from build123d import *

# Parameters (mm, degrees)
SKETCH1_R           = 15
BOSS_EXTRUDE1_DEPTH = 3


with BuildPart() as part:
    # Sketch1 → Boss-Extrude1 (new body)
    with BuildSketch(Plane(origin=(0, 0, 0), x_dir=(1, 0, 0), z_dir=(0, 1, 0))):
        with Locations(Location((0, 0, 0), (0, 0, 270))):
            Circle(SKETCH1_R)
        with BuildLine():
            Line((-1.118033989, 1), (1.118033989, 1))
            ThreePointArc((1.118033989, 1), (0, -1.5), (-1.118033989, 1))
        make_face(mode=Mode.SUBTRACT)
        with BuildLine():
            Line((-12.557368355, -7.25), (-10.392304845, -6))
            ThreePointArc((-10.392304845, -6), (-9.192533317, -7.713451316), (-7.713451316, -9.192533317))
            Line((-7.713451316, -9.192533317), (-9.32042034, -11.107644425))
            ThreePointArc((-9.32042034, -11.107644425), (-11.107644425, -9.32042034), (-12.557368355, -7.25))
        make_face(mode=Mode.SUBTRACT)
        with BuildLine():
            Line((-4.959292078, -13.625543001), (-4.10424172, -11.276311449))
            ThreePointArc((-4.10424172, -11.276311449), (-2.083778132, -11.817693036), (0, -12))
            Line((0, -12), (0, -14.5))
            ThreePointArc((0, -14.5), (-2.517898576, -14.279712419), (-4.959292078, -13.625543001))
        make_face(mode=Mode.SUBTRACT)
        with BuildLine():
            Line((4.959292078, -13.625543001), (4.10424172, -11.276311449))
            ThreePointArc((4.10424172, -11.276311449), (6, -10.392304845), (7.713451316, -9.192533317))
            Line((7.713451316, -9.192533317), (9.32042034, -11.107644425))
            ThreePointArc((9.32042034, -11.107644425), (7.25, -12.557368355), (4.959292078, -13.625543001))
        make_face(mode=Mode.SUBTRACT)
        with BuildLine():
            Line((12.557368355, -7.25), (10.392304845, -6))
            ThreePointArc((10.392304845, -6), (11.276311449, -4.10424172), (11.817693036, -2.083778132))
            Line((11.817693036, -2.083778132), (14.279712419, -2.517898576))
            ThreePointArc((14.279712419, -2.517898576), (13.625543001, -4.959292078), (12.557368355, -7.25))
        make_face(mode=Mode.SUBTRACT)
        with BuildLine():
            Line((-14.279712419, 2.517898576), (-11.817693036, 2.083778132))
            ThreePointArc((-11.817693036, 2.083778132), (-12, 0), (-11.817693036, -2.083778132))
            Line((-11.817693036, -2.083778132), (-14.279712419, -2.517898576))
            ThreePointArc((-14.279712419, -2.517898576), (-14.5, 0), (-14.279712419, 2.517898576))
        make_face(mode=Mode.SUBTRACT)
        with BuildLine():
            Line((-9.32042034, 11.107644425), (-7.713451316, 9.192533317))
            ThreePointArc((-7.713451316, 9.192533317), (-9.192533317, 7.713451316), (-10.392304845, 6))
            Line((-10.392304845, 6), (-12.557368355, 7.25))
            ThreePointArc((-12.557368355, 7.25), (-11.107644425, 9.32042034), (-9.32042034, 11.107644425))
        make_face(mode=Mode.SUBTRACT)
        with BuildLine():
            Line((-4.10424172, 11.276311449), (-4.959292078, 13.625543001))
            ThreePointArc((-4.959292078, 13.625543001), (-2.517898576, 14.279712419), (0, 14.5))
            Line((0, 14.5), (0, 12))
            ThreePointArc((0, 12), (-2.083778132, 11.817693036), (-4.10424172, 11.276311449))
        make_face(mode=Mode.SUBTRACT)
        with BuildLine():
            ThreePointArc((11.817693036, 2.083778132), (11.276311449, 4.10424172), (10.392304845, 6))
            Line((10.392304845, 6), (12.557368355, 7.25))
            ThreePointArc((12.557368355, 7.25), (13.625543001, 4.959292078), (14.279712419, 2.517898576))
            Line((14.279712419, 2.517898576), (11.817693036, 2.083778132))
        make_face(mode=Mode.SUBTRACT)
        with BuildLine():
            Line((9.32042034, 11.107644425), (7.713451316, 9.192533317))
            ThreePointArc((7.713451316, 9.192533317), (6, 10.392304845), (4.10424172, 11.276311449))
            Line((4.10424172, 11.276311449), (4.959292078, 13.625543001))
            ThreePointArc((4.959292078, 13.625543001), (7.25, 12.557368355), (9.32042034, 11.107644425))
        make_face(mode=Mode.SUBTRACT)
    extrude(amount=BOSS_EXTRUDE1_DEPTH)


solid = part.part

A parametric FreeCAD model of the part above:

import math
import FreeCAD as App
import Part
import Sketcher

V = App.Vector
Q = App.Units.Quantity

doc = App.newDocument("Part")
params = doc.addObject("Spreadsheet::Sheet", "Params")
for row, (alias, value) in enumerate([
    ("sketch1_diameter", "30 mm"),
    ("sketch1_radius", "12 mm"),
    ("sketch1_radius2", "14.5 mm"),
    ("sketch1_radius3", "1.5 mm"),
    ("pad1_length", "3 mm"),
], start=1):
    params.set(f"A{row}", alias)
    params.set(f"B{row}", "=" + value)
    params.setAlias(f"B{row}", alias)

body = doc.addObject("PartDesign::Body", "Body")

sketch1 = body.newObject("Sketcher::SketchObject", "Sketch")
sketch1.AttachmentSupport = (doc.getObject("XZ_Plane"), [""])
sketch1.MapMode = "FlatFace"
sketch1.addGeometry([
    Part.Circle(V(0, 0, 0), V(0, 0, 1), 15),
    Part.ArcOfCircle(Part.Circle(V(0, 0, 0), V(0, 0, 1), 14.5), math.radians(-150), math.radians(-130)),
    Part.LineSegment(V(-9.32042, -11.107644, 0), V(-7.713451, -9.192533, 0)),
    Part.ArcOfCircle(Part.Circle(V(0, 0, 0), V(0, 0, 1), 12), math.radians(-150), math.radians(-130)),
    Part.LineSegment(V(-10.392305, -6, 0), V(-12.557368, -7.25, 0)),
    Part.ArcOfCircle(Part.Circle(V(0, 0, 0), V(0, 0, 1), 12), math.radians(-110), math.radians(-90)),
    Part.LineSegment(V(-4.104242, -11.276311, 0), V(-4.959292, -13.625543, 0)),
    Part.ArcOfCircle(Part.Circle(V(0, 0, 0), V(0, 0, 1), 14.5), math.radians(-110), math.radians(-90)),
    Part.LineSegment(V(0, -14.5, 0), V(0, -12, 0)),
    Part.ArcOfCircle(Part.Circle(V(0, 0, 0), V(0, 0, 1), 14.5), math.radians(170), math.radians(190)),
    Part.LineSegment(V(-14.279712, -2.517899, 0), V(-11.817693, -2.083778, 0)),
    Part.ArcOfCircle(Part.Circle(V(0, 0, 0), V(0, 0, 1), 12), math.radians(170), math.radians(190)),
    Part.LineSegment(V(-11.817693, 2.083778, 0), V(-14.279712, 2.517899, 0)),
    Part.ArcOfCircle(Part.Circle(V(0, 0, 0), V(0, 0, 1), 14.5), math.radians(130), math.radians(150)),
    Part.LineSegment(V(-12.557368, 7.25, 0), V(-10.392305, 6, 0)),
    Part.ArcOfCircle(Part.Circle(V(0, 0, 0), V(0, 0, 1), 12), math.radians(130), math.radians(150)),
    Part.LineSegment(V(-7.713451, 9.192533, 0), V(-9.32042, 11.107644, 0)),
    Part.ArcOfCircle(Part.Circle(V(0, 0, 0), V(0, 0, 1), 14.5), math.radians(90), math.radians(110)),
    Part.LineSegment(V(-4.959292, 13.625543, 0), V(-4.104242, 11.276311, 0)),
    Part.ArcOfCircle(Part.Circle(V(0, 0, 0), V(0, 0, 1), 12), math.radians(90), math.radians(110)),
    Part.LineSegment(V(0, 12, 0), V(0, 14.5, 0)),
    Part.ArcOfCircle(Part.Circle(V(0, 0, 0), V(0, 0, 1), 14.5), math.radians(-70), math.radians(-50)),
    Part.LineSegment(V(9.32042, -11.107644, 0), V(7.713451, -9.192533, 0)),
    Part.ArcOfCircle(Part.Circle(V(0, 0, 0), V(0, 0, 1), 12), math.radians(-70), math.radians(-50)),
    Part.LineSegment(V(4.104242, -11.276311, 0), V(4.959292, -13.625543, 0)),
    Part.LineSegment(V(14.279712, -2.517899, 0), V(11.817693, -2.083778, 0)),
    Part.ArcOfCircle(Part.Circle(V(0, 0, 0), V(0, 0, 1), 12), math.radians(-30), math.radians(-10)),
    Part.LineSegment(V(10.392305, -6, 0), V(12.557368, -7.25, 0)),
    Part.ArcOfCircle(Part.Circle(V(0, 0, 0), V(0, 0, 1), 14.5), math.radians(-30), math.radians(-10)),
    Part.ArcOfCircle(Part.Circle(V(0, 0, 0), V(0, 0, 1), 1.5), math.radians(-41.810315), math.radians(221.810315)),
    Part.LineSegment(V(-1.118034, -1, 0), V(1.118034, -1, 0)),
    Part.ArcOfCircle(Part.Circle(V(0, 0, 0), V(0, 0, 1), 14.5), math.radians(50), math.radians(70)),
    Part.LineSegment(V(4.959292, 13.625543, 0), V(4.104242, 11.276311, 0)),
    Part.ArcOfCircle(Part.Circle(V(0, 0, 0), V(0, 0, 1), 12), math.radians(50), math.radians(70)),
    Part.LineSegment(V(7.713451, 9.192533, 0), V(9.32042, 11.107644, 0)),
    Part.ArcOfCircle(Part.Circle(V(0, 0, 0), V(0, 0, 1), 14.5), math.radians(10), math.radians(30)),
    Part.LineSegment(V(12.557368, 7.25, 0), V(10.392305, 6, 0)),
    Part.ArcOfCircle(Part.Circle(V(0, 0, 0), V(0, 0, 1), 12), math.radians(10), math.radians(30)),
    Part.LineSegment(V(11.817693, 2.083778, 0), V(14.279712, 2.517899, 0)),
], False)
sketch1.addConstraint([
    Sketcher.Constraint("Coincident", 1, 2, 2, 1),
    Sketcher.Constraint("Coincident", 2, 2, 3, 2),
    Sketcher.Constraint("Coincident", 3, 1, 4, 1),
    Sketcher.Constraint("Coincident", 4, 2, 1, 1),
    Sketcher.Constraint("Coincident", 5, 1, 6, 1),
    Sketcher.Constraint("Coincident", 6, 2, 7, 1),
    Sketcher.Constraint("Coincident", 7, 2, 8, 1),
    Sketcher.Constraint("Coincident", 8, 2, 5, 2),
    Sketcher.Constraint("Coincident", 9, 2, 10, 1),
    Sketcher.Constraint("Coincident", 10, 2, 11, 2),
    Sketcher.Constraint("Coincident", 11, 1, 12, 1),
    Sketcher.Constraint("Coincident", 12, 2, 9, 1),
    Sketcher.Constraint("Coincident", 13, 2, 14, 1),
    Sketcher.Constraint("Coincident", 14, 2, 15, 2),
    Sketcher.Constraint("Coincident", 15, 1, 16, 1),
    Sketcher.Constraint("Coincident", 16, 2, 13, 1),
    Sketcher.Constraint("Coincident", 17, 2, 18, 1),
    Sketcher.Constraint("Coincident", 18, 2, 19, 2),
    Sketcher.Constraint("Coincident", 19, 1, 20, 1),
    Sketcher.Constraint("Coincident", 20, 2, 17, 1),
    Sketcher.Constraint("Coincident", 21, 2, 22, 1),
    Sketcher.Constraint("Coincident", 22, 2, 23, 2),
    Sketcher.Constraint("Coincident", 23, 1, 24, 1),
    Sketcher.Constraint("Coincident", 24, 2, 21, 1),
    Sketcher.Constraint("Coincident", 25, 2, 26, 2),
    Sketcher.Constraint("Coincident", 26, 1, 27, 1),
    Sketcher.Constraint("Coincident", 27, 2, 28, 1),
    Sketcher.Constraint("Coincident", 28, 2, 25, 1),
    Sketcher.Constraint("Coincident", 29, 1, 30, 2),
    Sketcher.Constraint("Coincident", 30, 1, 29, 2),
    Sketcher.Constraint("Coincident", 31, 2, 32, 1),
    Sketcher.Constraint("Coincident", 32, 2, 33, 2),
    Sketcher.Constraint("Coincident", 33, 1, 34, 1),
    Sketcher.Constraint("Coincident", 34, 2, 31, 1),
    Sketcher.Constraint("Coincident", 35, 2, 36, 1),
    Sketcher.Constraint("Coincident", 36, 2, 37, 2),
    Sketcher.Constraint("Coincident", 37, 1, 38, 1),
    Sketcher.Constraint("Coincident", 38, 2, 35, 1),
    Sketcher.Constraint("Vertical", 8),
    Sketcher.Constraint("Vertical", 20),
    Sketcher.Constraint("Horizontal", 30),
    Sketcher.Constraint("Coincident", 0, 3, -1, 1),
    Sketcher.Constraint("Coincident", 1, 3, -1, 1),
    Sketcher.Constraint("Coincident", 3, 3, -1, 1),
    Sketcher.Constraint("Coincident", 5, 3, -1, 1),
    Sketcher.Constraint("Coincident", 7, 3, -1, 1),
    Sketcher.Constraint("Coincident", 9, 3, -1, 1),
    Sketcher.Constraint("Coincident", 11, 3, -1, 1),
    Sketcher.Constraint("Coincident", 13, 3, -1, 1),
    Sketcher.Constraint("Coincident", 15, 3, -1, 1),
    Sketcher.Constraint("Coincident", 17, 3, -1, 1),
    Sketcher.Constraint("Coincident", 19, 3, -1, 1),
    Sketcher.Constraint("Coincident", 21, 3, -1, 1),
    Sketcher.Constraint("Coincident", 23, 3, -1, 1),
    Sketcher.Constraint("Coincident", 26, 3, -1, 1),
    Sketcher.Constraint("Coincident", 28, 3, -1, 1),
    Sketcher.Constraint("Coincident", 29, 3, -1, 1),
    Sketcher.Constraint("Coincident", 31, 3, -1, 1),
    Sketcher.Constraint("Coincident", 33, 3, -1, 1),
    Sketcher.Constraint("Coincident", 35, 3, -1, 1),
    Sketcher.Constraint("Coincident", 37, 3, -1, 1),
    Sketcher.Constraint("Equal", 3, 5),
    Sketcher.Constraint("Equal", 1, 7),
    Sketcher.Constraint("Equal", 7, 9),
    Sketcher.Constraint("Equal", 5, 11),
    Sketcher.Constraint("Equal", 9, 13),
    Sketcher.Constraint("Equal", 11, 15),
    Sketcher.Constraint("Equal", 13, 17),
    Sketcher.Constraint("Equal", 15, 19),
    Sketcher.Constraint("Equal", 17, 21),
    Sketcher.Constraint("Equal", 19, 23),
    Sketcher.Constraint("Equal", 23, 26),
    Sketcher.Constraint("Equal", 21, 28),
    Sketcher.Constraint("Equal", 28, 31),
    Sketcher.Constraint("Equal", 26, 33),
    Sketcher.Constraint("Equal", 31, 35),
    Sketcher.Constraint("Equal", 33, 37),
    Sketcher.Constraint("PointOnObject", 7, 2, -2),
    Sketcher.Constraint("PointOnObject", 19, 1, -2),
    Sketcher.Constraint("Parallel", 16, 22),
    Sketcher.Constraint("Parallel", 18, 24),
    Sketcher.Constraint("Parallel", 12, 25),
    Sketcher.Constraint("Parallel", 14, 27),
    Sketcher.Constraint("Parallel", 6, 32),
    Sketcher.Constraint("Parallel", 2, 34),
    Sketcher.Constraint("Parallel", 4, 36),
    Sketcher.Constraint("Parallel", 10, 38),
    Sketcher.Constraint("Horizontal", 1, 2, 21, 2),
    Sketcher.Constraint("Horizontal", 2, 2, 22, 2),
    Sketcher.Constraint("Horizontal", 5, 1, 23, 1),
    Sketcher.Constraint("Horizontal", 6, 2, 24, 2),
    Sketcher.Constraint("Horizontal", 10, 2, 25, 2),
    Sketcher.Constraint("Horizontal", 3, 1, 26, 1),
    Sketcher.Constraint("Horizontal", 4, 2, 27, 2),
    Sketcher.Constraint("Horizontal", 9, 2, 28, 2),
    Sketcher.Constraint("Horizontal", 17, 2, 31, 2),
    Sketcher.Constraint("Horizontal", 15, 1, 33, 1),
    Sketcher.Constraint("Horizontal", 13, 2, 35, 2),
    Sketcher.Constraint("Horizontal", 11, 1, 37, 1),
    Sketcher.Constraint("Vertical", 10, 2, 11, 1),
    Sketcher.Constraint("Vertical", 4, 2, 13, 2),
    Sketcher.Constraint("Vertical", 2, 2, 15, 1),
    Sketcher.Constraint("Vertical", 6, 2, 17, 2),
    Sketcher.Constraint("Diameter", 0, Q("30 mm")),
    Sketcher.Constraint("Radius", 3, Q("12 mm")),
    Sketcher.Constraint("Radius", 1, Q("14.5 mm")),
    Sketcher.Constraint("Radius", 29, Q("1.5 mm")),
    Sketcher.Constraint("Angle", 2, Q("50 deg")),
    Sketcher.Constraint("Angle", 4, Q("-150 deg")),
    Sketcher.Constraint("Angle", 6, Q("-110 deg")),
    Sketcher.Constraint("Angle", 10, Q("10 deg")),
    Sketcher.Constraint("DistanceY", 3, 1, -1, 1, Q("6 mm")),
    Sketcher.Constraint("DistanceY", 29, 1, -1, 1, Q("1 mm")),
    Sketcher.Constraint("DistanceY", 9, 2, -1, 1, Q("2.517899 mm")),
    Sketcher.Constraint("DistanceY", 6, 2, 1, 2, Q("2.517899 mm")),
    Sketcher.Constraint("DistanceX", 11, 1, 17, 2, Q("6.858401 mm")),
])
sketch1.setExpression("Constraints[103]", "Params.sketch1_diameter")
sketch1.setExpression("Constraints[104]", "Params.sketch1_radius")
sketch1.setExpression("Constraints[105]", "Params.sketch1_radius2")
sketch1.setExpression("Constraints[106]", "Params.sketch1_radius3")
pad1 = body.newObject("PartDesign::Pad", "Pad")
pad1.Profile = sketch1
pad1.setExpression("Length", "Params.pad1_length")
pad1.Reversed = True

doc.recompute()
